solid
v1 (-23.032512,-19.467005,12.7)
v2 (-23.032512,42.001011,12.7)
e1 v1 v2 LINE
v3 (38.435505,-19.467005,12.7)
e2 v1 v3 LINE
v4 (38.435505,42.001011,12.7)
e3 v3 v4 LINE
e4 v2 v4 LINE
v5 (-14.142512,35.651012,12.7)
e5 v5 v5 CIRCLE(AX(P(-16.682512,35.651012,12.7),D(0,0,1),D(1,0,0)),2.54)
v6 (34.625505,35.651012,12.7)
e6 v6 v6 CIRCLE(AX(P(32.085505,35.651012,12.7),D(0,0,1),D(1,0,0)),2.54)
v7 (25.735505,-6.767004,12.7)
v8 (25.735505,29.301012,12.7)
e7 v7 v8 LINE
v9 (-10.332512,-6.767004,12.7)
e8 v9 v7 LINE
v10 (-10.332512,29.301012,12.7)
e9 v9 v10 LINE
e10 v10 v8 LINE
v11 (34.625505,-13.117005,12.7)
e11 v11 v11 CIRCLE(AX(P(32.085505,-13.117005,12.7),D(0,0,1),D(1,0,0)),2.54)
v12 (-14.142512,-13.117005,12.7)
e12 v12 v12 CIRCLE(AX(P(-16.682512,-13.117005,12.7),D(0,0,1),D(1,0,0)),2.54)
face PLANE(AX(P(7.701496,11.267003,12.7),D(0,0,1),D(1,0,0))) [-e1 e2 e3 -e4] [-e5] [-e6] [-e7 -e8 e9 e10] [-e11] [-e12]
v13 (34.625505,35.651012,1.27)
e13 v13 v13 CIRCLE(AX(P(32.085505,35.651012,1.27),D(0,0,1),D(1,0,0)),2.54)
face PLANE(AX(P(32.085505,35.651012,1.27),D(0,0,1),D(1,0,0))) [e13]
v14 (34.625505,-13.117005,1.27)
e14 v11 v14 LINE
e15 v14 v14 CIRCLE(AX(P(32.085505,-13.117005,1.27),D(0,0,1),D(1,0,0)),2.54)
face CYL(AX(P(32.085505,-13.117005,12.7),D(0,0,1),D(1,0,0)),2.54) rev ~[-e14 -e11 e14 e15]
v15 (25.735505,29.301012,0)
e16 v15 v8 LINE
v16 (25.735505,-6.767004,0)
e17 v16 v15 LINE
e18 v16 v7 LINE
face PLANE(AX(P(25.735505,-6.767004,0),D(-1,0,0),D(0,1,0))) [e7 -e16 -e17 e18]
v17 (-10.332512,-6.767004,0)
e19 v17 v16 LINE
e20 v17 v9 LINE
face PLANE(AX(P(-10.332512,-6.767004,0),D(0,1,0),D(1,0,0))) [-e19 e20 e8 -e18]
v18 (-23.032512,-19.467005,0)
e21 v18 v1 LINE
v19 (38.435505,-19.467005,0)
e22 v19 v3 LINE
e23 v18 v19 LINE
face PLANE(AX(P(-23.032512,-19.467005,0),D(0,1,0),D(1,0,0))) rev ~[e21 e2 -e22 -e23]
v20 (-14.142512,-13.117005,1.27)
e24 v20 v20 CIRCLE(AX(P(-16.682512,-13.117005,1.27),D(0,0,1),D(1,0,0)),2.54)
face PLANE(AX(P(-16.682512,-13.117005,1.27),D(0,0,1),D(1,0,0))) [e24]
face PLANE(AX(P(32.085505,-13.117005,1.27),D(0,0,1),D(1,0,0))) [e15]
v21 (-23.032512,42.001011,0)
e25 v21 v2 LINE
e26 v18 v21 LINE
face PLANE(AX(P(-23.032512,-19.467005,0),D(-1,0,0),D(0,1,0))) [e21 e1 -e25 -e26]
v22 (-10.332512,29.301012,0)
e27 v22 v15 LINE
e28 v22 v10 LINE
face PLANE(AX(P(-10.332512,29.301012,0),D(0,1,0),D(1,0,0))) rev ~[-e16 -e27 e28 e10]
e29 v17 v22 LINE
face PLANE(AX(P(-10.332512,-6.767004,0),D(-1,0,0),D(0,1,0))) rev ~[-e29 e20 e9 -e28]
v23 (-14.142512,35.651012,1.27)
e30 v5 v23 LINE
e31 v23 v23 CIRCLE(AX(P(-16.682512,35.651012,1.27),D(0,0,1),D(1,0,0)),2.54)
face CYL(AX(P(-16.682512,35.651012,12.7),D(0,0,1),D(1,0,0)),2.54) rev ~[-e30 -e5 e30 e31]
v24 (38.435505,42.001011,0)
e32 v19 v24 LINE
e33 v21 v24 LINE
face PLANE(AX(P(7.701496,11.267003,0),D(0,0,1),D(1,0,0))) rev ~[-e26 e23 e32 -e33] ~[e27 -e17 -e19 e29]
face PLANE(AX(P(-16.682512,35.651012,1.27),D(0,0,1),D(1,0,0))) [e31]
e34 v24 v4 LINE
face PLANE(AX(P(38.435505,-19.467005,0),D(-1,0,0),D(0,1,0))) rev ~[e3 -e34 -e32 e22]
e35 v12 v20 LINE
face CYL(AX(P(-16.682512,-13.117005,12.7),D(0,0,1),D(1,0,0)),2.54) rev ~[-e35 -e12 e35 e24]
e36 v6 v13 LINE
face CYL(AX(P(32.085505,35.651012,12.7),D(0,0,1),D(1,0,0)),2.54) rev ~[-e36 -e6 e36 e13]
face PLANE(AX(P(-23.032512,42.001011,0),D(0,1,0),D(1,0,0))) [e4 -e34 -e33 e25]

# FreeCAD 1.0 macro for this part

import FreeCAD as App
import Part
import Sketcher
from FreeCAD import Vector
Q = App.Units.Quantity

doc = App.newDocument("Part")
body = doc.addObject("PartDesign::Body", "Body")

sketch1 = body.newObject("Sketcher::SketchObject", "Sketch")
sketch1.AttachmentSupport = (doc.getObject("XY_Plane"), [""])
sketch1.MapMode = "FlatFace"
sketch1.addGeometry(Part.LineSegment(Vector(-23, 42, 0), Vector(-23, -19, 0)), False)
sketch1.addGeometry(Part.LineSegment(Vector(-23, -19, 0), Vector(38, -19, 0)), False)
sketch1.addGeometry(Part.LineSegment(Vector(38, -19, 0), Vector(38, 42, 0)), False)
sketch1.addGeometry(Part.LineSegment(Vector(38, 42, 0), Vector(-23, 42, 0)), False)
sketch1.addGeometry(Part.LineSegment(Vector(26, -7, 0), Vector(-10, -7, 0)), False)
sketch1.addGeometry(Part.LineSegment(Vector(-10, -7, 0), Vector(-10, 29, 0)), False)
sketch1.addGeometry(Part.LineSegment(Vector(-10, 29, 0), Vector(26, 29, 0)), False)
sketch1.addGeometry(Part.LineSegment(Vector(26, 29, 0), Vector(26, -7, 0)), False)
sketch1.addConstraint(Sketcher.Constraint("Coincident", 0, 2, 1, 1))
sketch1.addConstraint(Sketcher.Constraint("Coincident", 1, 2, 2, 1))
sketch1.addConstraint(Sketcher.Constraint("Coincident", 2, 2, 3, 1))
sketch1.addConstraint(Sketcher.Constraint("Coincident", 3, 2, 0, 1))
sketch1.addConstraint(Sketcher.Constraint("Coincident", 4, 2, 5, 1))
sketch1.addConstraint(Sketcher.Constraint("Coincident", 5, 2, 6, 1))
sketch1.addConstraint(Sketcher.Constraint("Coincident", 6, 2, 7, 1))
sketch1.addConstraint(Sketcher.Constraint("Coincident", 7, 2, 4, 1))
sketch1.addConstraint(Sketcher.Constraint("Vertical", 0))
sketch1.addConstraint(Sketcher.Constraint("Horizontal", 1))
sketch1.addConstraint(Sketcher.Constraint("Vertical", 2))
sketch1.addConstraint(Sketcher.Constraint("Horizontal", 3))
sketch1.addConstraint(Sketcher.Constraint("Horizontal", 4))
sketch1.addConstraint(Sketcher.Constraint("Vertical", 5))
sketch1.addConstraint(Sketcher.Constraint("Horizontal", 6))
sketch1.addConstraint(Sketcher.Constraint("Vertical", 7))
sketch1.addConstraint(Sketcher.Constraint("Equal", 3, 0))
sketch1.addConstraint(Sketcher.Constraint("Equal", 6, 5))
sketch1.addConstraint(Sketcher.Constraint("DistanceX", 0, 2, 4, 2, Q("0.5 in")))
sketch1.addConstraint(Sketcher.Constraint("DistanceY", 0, 2, 4, 2, Q("0.5 in")))
sketch1.addConstraint(Sketcher.Constraint("DistanceY", 5, 2, 3, 2, Q("0.5 in")))
sketch1.addConstraint(Sketcher.Constraint("DistanceX", 1, 1, 1, 2, 61.468017))
sketch1.addConstraint(Sketcher.Constraint("DistanceY", -1, 1, 2, 2, 42.001011))
sketch1.addConstraint(Sketcher.Constraint("DistanceX", 4, 2, -1, 1, 10.332512))
pad1 = body.newObject("PartDesign::Pad", "Pad")
pad1.Profile = sketch1
pad1.Length = Q("0.5 in")

sketch2 = body.newObject("Sketcher::SketchObject", "Sketch001")
sketch2.AttachmentSupport = (doc.getObject("XY_Plane"), [""])
sketch2.MapMode = "FlatFace"
sketch2.AttachmentOffset = App.Placement(Vector(0, 0, 0.5 * 25.4), App.Rotation())
sketch2.addGeometry(Part.Circle(Vector(-16.7, 35.7, 0), Vector(0, 0, 1), 2.5), False)
sketch2.addGeometry(Part.Circle(Vector(32.1, 35.7, 0), Vector(0, 0, 1), 2.5), False)
sketch2.addGeometry(Part.Circle(Vector(32.1, -13.1, 0), Vector(0, 0, 1), 2.5), False)
sketch2.addGeometry(Part.Circle(Vector(-16.7, -13.1, 0), Vector(0, 0, 1), 2.5), False)
sketch2.addConstraint(Sketcher.Constraint("Equal", 0, 1))
sketch2.addConstraint(Sketcher.Constraint("Equal", 1, 2))
sketch2.addConstraint(Sketcher.Constraint("Equal", 2, 3))
sketch2.addConstraint(Sketcher.Constraint("Horizontal", 0, 3, 1, 3))
sketch2.addConstraint(Sketcher.Constraint("Horizontal", 2, 3, 3, 3))
sketch2.addConstraint(Sketcher.Constraint("Vertical", 1, 3, 2, 3))
sketch2.addConstraint(Sketcher.Constraint("Vertical", 0, 3, 3, 3))
sketch2.addConstraint(Sketcher.Constraint("Diameter", 0, Q("0.2 in")))
sketch2.addConstraint(Sketcher.Constraint("DistanceX", 0, 3, -1, 1, 16.682512))
sketch2.addConstraint(Sketcher.Constraint("DistanceY", -1, 1, 0, 3, 35.651012))
sketch2.addConstraint(Sketcher.Constraint("DistanceX", -1, 1, 1, 3, 32.085505))
sketch2.addConstraint(Sketcher.Constraint("DistanceY", 2, 3, -1, 1, 13.117005))
pocket1 = body.newObject("PartDesign::Pocket", "Pocket")
pocket1.Profile = sketch2
pocket1.Length = Q("0.45 in")

doc.recompute()
